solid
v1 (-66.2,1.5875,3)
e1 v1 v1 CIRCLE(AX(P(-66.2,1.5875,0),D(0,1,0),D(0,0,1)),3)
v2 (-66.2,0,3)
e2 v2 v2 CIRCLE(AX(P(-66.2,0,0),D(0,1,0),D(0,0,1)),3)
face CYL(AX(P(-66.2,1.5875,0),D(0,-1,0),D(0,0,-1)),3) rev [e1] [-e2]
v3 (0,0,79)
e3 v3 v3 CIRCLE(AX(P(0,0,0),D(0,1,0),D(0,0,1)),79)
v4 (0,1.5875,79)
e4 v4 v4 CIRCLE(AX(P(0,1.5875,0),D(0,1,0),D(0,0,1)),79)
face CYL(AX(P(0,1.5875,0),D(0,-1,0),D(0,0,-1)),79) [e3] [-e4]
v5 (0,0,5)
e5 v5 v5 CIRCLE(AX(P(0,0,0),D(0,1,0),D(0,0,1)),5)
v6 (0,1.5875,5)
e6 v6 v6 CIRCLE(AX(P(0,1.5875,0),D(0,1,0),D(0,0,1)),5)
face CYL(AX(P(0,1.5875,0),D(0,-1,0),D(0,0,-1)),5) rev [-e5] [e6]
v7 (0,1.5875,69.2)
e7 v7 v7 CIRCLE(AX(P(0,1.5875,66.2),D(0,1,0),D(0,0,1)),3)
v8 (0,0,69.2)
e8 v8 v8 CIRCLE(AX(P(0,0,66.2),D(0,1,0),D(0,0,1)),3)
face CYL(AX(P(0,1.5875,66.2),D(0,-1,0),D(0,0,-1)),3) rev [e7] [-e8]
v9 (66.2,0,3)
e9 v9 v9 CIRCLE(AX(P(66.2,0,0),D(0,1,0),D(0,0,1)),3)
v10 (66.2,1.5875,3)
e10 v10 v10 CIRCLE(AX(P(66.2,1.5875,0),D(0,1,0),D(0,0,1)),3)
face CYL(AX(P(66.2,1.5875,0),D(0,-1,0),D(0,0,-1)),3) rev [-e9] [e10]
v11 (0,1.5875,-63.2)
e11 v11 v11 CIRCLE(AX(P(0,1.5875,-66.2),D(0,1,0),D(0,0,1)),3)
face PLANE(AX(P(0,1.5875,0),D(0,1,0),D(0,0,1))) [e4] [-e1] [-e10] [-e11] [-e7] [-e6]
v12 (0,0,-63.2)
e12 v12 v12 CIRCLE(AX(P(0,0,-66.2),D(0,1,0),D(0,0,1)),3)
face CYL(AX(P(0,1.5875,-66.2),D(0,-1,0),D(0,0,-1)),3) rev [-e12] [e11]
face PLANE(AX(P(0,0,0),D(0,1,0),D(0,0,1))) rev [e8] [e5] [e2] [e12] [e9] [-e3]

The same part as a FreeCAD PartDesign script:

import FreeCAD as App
import Part
import Sketcher
Q = App.Units.Quantity

doc = App.newDocument("Part")
params = doc.addObject("Spreadsheet::Sheet", "Params")
for row, (alias, value) in enumerate([
    ("sketch1_diameter", "158 mm"),
    ("sketch1_diameter2", "6 mm"),
    ("sketch1_diameter3", "10 mm"),
    ("pad1_length", "1.5875 mm"),
], start=1):
    params.set(f"A{row}", alias)
    params.set(f"B{row}", "=" + value)
    params.setAlias(f"B{row}", alias)

body = doc.addObject("PartDesign::Body", "Body")

sketch1 = body.newObject("Sketcher::SketchObject", "Sketch")
sketch1.AttachmentSupport = (doc.getObject("XZ_Plane"), [""])
sketch1.MapMode = "FlatFace"
sketch1.addGeometry([
    Part.Circle(App.Vector(0, 0, 0), App.Vector(0, 0, 1), 79),
    Part.Circle(App.Vector(0, 66.2, 0), App.Vector(0, 0, 1), 3),
    Part.Circle(App.Vector(-66.2, 0, 0), App.Vector(0, 0, 1), 3),
    Part.Circle(App.Vector(0, 0, 0), App.Vector(0, 0, 1), 5),
    Part.Circle(App.Vector(66.2, 0, 0), App.Vector(0, 0, 1), 3),
    Part.Circle(App.Vector(0, -66.2, 0), App.Vector(0, 0, 1), 3),
], False)
sketch1.addConstraint([
    Sketcher.Constraint("Coincident", 0, 3, -1, 1),
    Sketcher.Constraint("Coincident", 3, 3, -1, 1),
    Sketcher.Constraint("Equal", 1, 2),
    Sketcher.Constraint("Equal", 2, 4),
    Sketcher.Constraint("Equal", 4, 5),
    Sketcher.Constraint("Symmetric", 2, 3, 4, 3, -1, 1),
    Sketcher.Constraint("Symmetric", 1, 3, 5, 3, -1, 1),
    Sketcher.Constraint("PointOnObject", 1, 3, -2),
    Sketcher.Constraint("PointOnObject", 2, 3, -1),
    Sketcher.Constraint("Diameter", 0, Q("158 mm")),
    Sketcher.Constraint("Diameter", 1, Q("6 mm")),
    Sketcher.Constraint("Diameter", 3, Q("10 mm")),
    Sketcher.Constraint("DistanceY", -1, 1, 1, 3, Q("66.2 mm")),
    Sketcher.Constraint("DistanceX", 2, 3, -1, 1, Q("66.2 mm")),
])
sketch1.setExpression("Constraints[9]", "Params.sketch1_diameter")
sketch1.setExpression("Constraints[10]", "Params.sketch1_diameter2")
sketch1.setExpression("Constraints[11]", "Params.sketch1_diameter3")
pad1 = body.newObject("PartDesign::Pad", "Pad")
pad1.Profile = sketch1
pad1.setExpression("Length", "Params.pad1_length")
pad1.Reversed = True

doc.recompute()
